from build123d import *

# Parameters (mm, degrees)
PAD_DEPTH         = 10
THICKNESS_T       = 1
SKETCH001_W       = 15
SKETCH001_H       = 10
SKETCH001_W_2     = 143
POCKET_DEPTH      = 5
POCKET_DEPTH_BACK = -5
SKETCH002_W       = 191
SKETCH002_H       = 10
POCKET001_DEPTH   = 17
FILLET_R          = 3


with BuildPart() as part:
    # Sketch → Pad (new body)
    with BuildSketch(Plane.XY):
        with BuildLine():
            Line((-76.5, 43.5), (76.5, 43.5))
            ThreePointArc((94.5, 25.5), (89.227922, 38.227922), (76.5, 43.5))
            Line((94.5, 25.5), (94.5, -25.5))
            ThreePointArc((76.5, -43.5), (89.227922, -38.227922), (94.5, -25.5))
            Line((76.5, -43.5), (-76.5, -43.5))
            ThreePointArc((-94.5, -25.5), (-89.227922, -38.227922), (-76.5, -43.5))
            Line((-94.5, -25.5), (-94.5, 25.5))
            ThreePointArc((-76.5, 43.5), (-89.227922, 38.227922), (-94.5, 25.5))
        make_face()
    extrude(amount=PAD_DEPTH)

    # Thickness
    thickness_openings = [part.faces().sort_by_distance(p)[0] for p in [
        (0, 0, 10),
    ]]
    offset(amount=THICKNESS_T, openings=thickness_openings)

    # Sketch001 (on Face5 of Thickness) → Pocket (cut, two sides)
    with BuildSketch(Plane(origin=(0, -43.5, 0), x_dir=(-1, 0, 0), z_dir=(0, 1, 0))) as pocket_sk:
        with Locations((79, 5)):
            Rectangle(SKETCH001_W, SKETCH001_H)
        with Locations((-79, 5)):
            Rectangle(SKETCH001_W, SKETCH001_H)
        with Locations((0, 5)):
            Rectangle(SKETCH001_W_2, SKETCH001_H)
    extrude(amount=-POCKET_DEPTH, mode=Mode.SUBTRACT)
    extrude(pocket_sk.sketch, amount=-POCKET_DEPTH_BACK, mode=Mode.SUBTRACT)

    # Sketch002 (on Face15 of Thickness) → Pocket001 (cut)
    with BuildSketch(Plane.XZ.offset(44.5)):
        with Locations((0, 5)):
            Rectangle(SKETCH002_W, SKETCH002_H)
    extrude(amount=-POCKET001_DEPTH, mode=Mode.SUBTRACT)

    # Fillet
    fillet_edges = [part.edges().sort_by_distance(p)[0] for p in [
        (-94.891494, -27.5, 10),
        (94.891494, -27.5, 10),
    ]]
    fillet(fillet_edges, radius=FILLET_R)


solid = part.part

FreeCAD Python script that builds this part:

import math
import FreeCAD as App
import Part
import Sketcher
from FreeCAD import Vector


def edges_at(feature, points):
    """Names of the edges that pass closest to the given points."""
    edges = feature.Shape.Edges
    near = lambda p: min(range(len(edges)), key=lambda i: edges[i].distToShape(Part.Vertex(*p))[0])
    return sorted({f"Edge{near(p) + 1}" for p in points})


def faces_at(feature, points):
    """Names of the faces that lie closest to the given points."""
    faces = feature.Shape.Faces
    near = lambda p: min(range(len(faces)), key=lambda i: faces[i].distToShape(Part.Vertex(*p))[0])
    return sorted({f"Face{near(p) + 1}" for p in points})


def add_polygon(sketch, points):
    """Adds a closed chain of lines whose ends are joined by coincident constraints."""
    first, n = sketch.GeometryCount, len(points)
    for a, b in zip(points, points[1:] + points[:1]):
        sketch.addGeometry(Part.LineSegment(App.Vector(*a, 0), App.Vector(*b, 0)), False)
    for i in range(n):
        sketch.addConstraint(Sketcher.Constraint("Coincident", first + i, 2, first + (i + 1) % n, 1))

doc = App.newDocument("Part")
body = doc.addObject("PartDesign::Body", "Body")

sketch1 = doc.addObject("Sketcher::SketchObject", "Sketch")
body.addObject(sketch1)
sketch1.AttachmentSupport = (doc.XY_Plane, [""])
sketch1.MapMode = "FlatFace"
sketch1.addGeometry([
    Part.LineSegment(Vector(76.5, 43.5, 0), Vector(-76.5, 43.5, 0)),
    Part.ArcOfCircle(Part.Circle(Vector(-76.5, 25.5, 0), Vector(0, 0, 1), 18), math.radians(90.000001), math.radians(179.999999)),
    Part.LineSegment(Vector(-94.5, 25.5, 0), Vector(-94.5, -25.5, 0)),
    Part.ArcOfCircle(Part.Circle(Vector(-76.5, -25.5, 0), Vector(0, 0, 1), 18), math.radians(-179.999999), math.radians(-90.000001)),
    Part.LineSegment(Vector(-76.5, -43.5, 0), Vector(76.5, -43.5, 0)),
    Part.ArcOfCircle(Part.Circle(Vector(76.5, -25.5, 0), Vector(0, 0, 1), 18), math.radians(-89.999999), math.radians(-0.000001)),
    Part.LineSegment(Vector(94.5, -25.5, 0), Vector(94.5, 25.5, 0)),
    Part.ArcOfCircle(Part.Circle(Vector(76.5, 25.5, 0), Vector(0, 0, 1), 18), math.radians(0.000001), math.radians(89.999999)),
], False)
sketch1.addConstraint([
    Sketcher.Constraint("Tangent", 0, 2, 1, 1),
    Sketcher.Constraint("Tangent", 1, 2, 2, 1),
    Sketcher.Constraint("Tangent", 2, 2, 3, 1),
    Sketcher.Constraint("Tangent", 3, 2, 4, 1),
    Sketcher.Constraint("Tangent", 4, 2, 5, 1),
    Sketcher.Constraint("Tangent", 5, 2, 6, 1),
    Sketcher.Constraint("Tangent", 6, 2, 7, 1),
    Sketcher.Constraint("Tangent", 7, 2, 0, 1),
    Sketcher.Constraint("Horizontal", 0),
    Sketcher.Constraint("Vertical", 2),
    Sketcher.Constraint("Horizontal", 4),
    Sketcher.Constraint("Vertical", 6),
    Sketcher.Constraint("Equal", 1, 3),
    Sketcher.Constraint("Equal", 3, 5),
    Sketcher.Constraint("Equal", 5, 7),
    Sketcher.Constraint("Symmetric", 1, 3, 5, 3, -1, 1),
    Sketcher.Constraint("Radius", 1, 18.0),
    Sketcher.Constraint("DistanceX", 0, 2, 0, 1, 153.0),
    Sketcher.Constraint("DistanceY", 2, 2, 2, 1, 51.0),
])
pad1 = doc.addObject("PartDesign::Pad", "Pad")
body.addObject(pad1)
pad1.Profile = sketch1
pad1.Length = 10
doc.recompute()

thickness = doc.addObject("PartDesign::Thickness", "Thickness")
body.addObject(thickness)
thickness.Base = (pad1, faces_at(pad1, [(0, 0, 10)]))
thickness.Value = 1
thickness.Reversed = False
thickness.Join = "Arc"

sketch2 = doc.addObject("Sketcher::SketchObject", "Sketch001")
body.addObject(sketch2)
sketch2.AttachmentSupport = (doc.XZ_Plane, [""])
sketch2.MapMode = "FlatFace"
sketch2.AttachmentOffset = App.Placement(Vector(0, 0, 43.5), App.Rotation())
add_polygon(sketch2, [(-86.5, 0), (-86.5, 10), (86.5, 10), (86.5, 0)])
sketch2.addConstraint([
    Sketcher.Constraint("Vertical", 0),
    Sketcher.Constraint("Horizontal", 1),
    Sketcher.Constraint("Vertical", 2),
    Sketcher.Constraint("Horizontal", 3),
    Sketcher.Constraint("Symmetric", 2, 2, 3, 2, -1, 1),
    Sketcher.Constraint("DistanceX", 1, 1, 1, 2, 173.0),
    Sketcher.Constraint("DistanceY", 0, 1, 0, 2, 10.0),
])
pocket1 = doc.addObject("PartDesign::Pocket", "Pocket")
body.addObject(pocket1)
pocket1.Profile = sketch2
pocket1.Type = "TwoLengths"
pocket1.Length = 5
pocket1.Length2 = 5
pocket1.Reversed = True

sketch3 = doc.addObject("Sketcher::SketchObject", "Sketch002")
body.addObject(sketch3)
sketch3.AttachmentSupport = (doc.XZ_Plane, [""])
sketch3.MapMode = "FlatFace"
sketch3.AttachmentOffset = App.Placement(Vector(0, 0, 44.5), App.Rotation())
add_polygon(sketch3, [(-95.5, 10), (-95.5, 0), (95.5, 0), (95.5, 10)])
sketch3.addConstraint([
    Sketcher.Constraint("Vertical", 0),
    Sketcher.Constraint("Horizontal", 1),
    Sketcher.Constraint("Vertical", 2),
    Sketcher.Constraint("Horizontal", 3),
    Sketcher.Constraint("Symmetric", 0, 2, 1, 2, -1, 1),
    Sketcher.Constraint("DistanceX", 1, 1, 1, 2, 191.0),
    Sketcher.Constraint("DistanceY", 0, 2, 0, 1, 10.0),
])
pocket2 = doc.addObject("PartDesign::Pocket", "Pocket001")
body.addObject(pocket2)
pocket2.Profile = sketch3
pocket2.Length = 17
doc.recompute()

fillet = doc.addObject("PartDesign::Fillet", "Fillet")
body.addObject(fillet)
fillet.Base = (pocket2, edges_at(pocket2, [(-94.891, -27.5, 10), (94.891, -27.5, 10)]))
fillet.Radius = 3

doc.recompute()
